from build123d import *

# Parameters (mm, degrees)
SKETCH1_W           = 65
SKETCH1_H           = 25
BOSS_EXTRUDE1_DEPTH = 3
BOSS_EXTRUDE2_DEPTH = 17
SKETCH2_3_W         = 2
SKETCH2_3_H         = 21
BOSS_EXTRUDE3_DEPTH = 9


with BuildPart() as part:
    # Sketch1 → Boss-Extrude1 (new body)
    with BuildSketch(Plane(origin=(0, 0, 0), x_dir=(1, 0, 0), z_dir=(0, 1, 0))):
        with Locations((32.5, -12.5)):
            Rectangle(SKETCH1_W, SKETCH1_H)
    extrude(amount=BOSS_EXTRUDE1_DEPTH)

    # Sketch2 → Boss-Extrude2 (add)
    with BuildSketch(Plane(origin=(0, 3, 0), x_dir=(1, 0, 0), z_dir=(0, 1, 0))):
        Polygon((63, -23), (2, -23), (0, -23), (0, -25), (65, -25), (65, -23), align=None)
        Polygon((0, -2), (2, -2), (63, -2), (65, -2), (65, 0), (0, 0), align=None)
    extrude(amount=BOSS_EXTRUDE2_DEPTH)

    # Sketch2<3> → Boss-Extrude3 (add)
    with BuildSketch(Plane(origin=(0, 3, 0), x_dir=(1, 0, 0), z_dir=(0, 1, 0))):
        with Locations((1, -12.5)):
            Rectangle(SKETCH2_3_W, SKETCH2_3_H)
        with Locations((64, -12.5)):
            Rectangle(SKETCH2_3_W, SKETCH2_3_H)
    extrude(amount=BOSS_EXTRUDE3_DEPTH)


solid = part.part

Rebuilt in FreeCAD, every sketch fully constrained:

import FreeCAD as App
import Part
import Sketcher
Q = App.Units.Quantity


def add_polygon(sketch, points):
    """Adds a closed chain of lines whose ends are joined by coincident constraints."""
    first, n = sketch.GeometryCount, len(points)
    for a, b in zip(points, points[1:] + points[:1]):
        sketch.addGeometry(Part.LineSegment(App.Vector(*a, 0), App.Vector(*b, 0)), False)
    for i in range(n):
        sketch.addConstraint(Sketcher.Constraint("Coincident", first + i, 2, first + (i + 1) % n, 1))

doc = App.newDocument("Part")
body = doc.addObject("PartDesign::Body", "Body")

sketch1 = body.newObject("Sketcher::SketchObject", "Sketch")
sketch1.AttachmentSupport = (doc.getObject("XZ_Plane"), [""])
sketch1.MapMode = "FlatFace"
add_polygon(sketch1, [(0, 0), (0, 25), (65, 25), (65, 0)])
sketch1.addConstraint([
    Sketcher.Constraint("Vertical", 0),
    Sketcher.Constraint("Horizontal", 1),
    Sketcher.Constraint("Vertical", 2),
    Sketcher.Constraint("Horizontal", 3),
    Sketcher.Constraint("Coincident", 3, 2, -1, 1),
    Sketcher.Constraint("DistanceX", 1, 1, 1, 2, Q("65 mm")),
    Sketcher.Constraint("DistanceY", 0, 1, 0, 2, Q("25 mm")),
])
pad1 = body.newObject("PartDesign::Pad", "Pad")
pad1.Profile = sketch1
pad1.Length = 3
pad1.Reversed = True

sketch2 = body.newObject("Sketcher::SketchObject", "Sketch001")
sketch2.AttachmentSupport = (doc.getObject("XZ_Plane"), [""])
sketch2.MapMode = "FlatFace"
sketch2.AttachmentOffset = App.Placement(App.Vector(0, 0, -3), App.Rotation())
add_polygon(sketch2, [(0, 23), (0, 25), (65, 25), (65, 23)])
add_polygon(sketch2, [(0, 2), (65, 2), (65, 0), (0, 0)])
sketch2.addConstraint([
    Sketcher.Constraint("Vertical", 0),
    Sketcher.Constraint("Horizontal", 1),
    Sketcher.Constraint("Vertical", 2),
    Sketcher.Constraint("Horizontal", 3),
    Sketcher.Constraint("Horizontal", 4),
    Sketcher.Constraint("Vertical", 5),
    Sketcher.Constraint("Horizontal", 6),
    Sketcher.Constraint("Vertical", 7),
    Sketcher.Constraint("Coincident", 6, 2, -1, 1),
    Sketcher.Constraint("PointOnObject", 0, 2, -2),
    Sketcher.Constraint("Vertical", 2, 2, 4, 2),
    Sketcher.Constraint("Equal", 2, 5),
    Sketcher.Constraint("DistanceX", 1, 1, 1, 2, Q("65 mm")),
    Sketcher.Constraint("DistanceY", 0, 1, 0, 2, Q("2 mm")),
    Sketcher.Constraint("DistanceY", -1, 1, 0, 2, Q("25 mm")),
])
pad2 = body.newObject("PartDesign::Pad", "Pad001")
pad2.Profile = sketch2
pad2.Length = 17
pad2.Reversed = True

sketch3 = body.newObject("Sketcher::SketchObject", "Sketch002")
sketch3.AttachmentSupport = (doc.getObject("XZ_Plane"), [""])
sketch3.MapMode = "FlatFace"
sketch3.AttachmentOffset = App.Placement(App.Vector(0, 0, -3), App.Rotation())
add_polygon(sketch3, [(0, 2), (0, 23), (2, 23), (2, 2)])
add_polygon(sketch3, [(63, 2), (63, 23), (65, 23), (65, 2)])
sketch3.addConstraint([
    Sketcher.Constraint("Vertical", 0),
    Sketcher.Constraint("Horizontal", 1),
    Sketcher.Constraint("Vertical", 2),
    Sketcher.Constraint("Horizontal", 3),
    Sketcher.Constraint("Vertical", 4),
    Sketcher.Constraint("Horizontal", 5),
    Sketcher.Constraint("Vertical", 6),
    Sketcher.Constraint("Horizontal", 7),
    Sketcher.Constraint("PointOnObject", 0, 2, -2),
    Sketcher.Constraint("Horizontal", 1, 2, 4, 2),
    Sketcher.Constraint("Horizontal", 3, 2, 6, 2),
    Sketcher.Constraint("Equal", 3, 5),
    Sketcher.Constraint("DistanceX", 1, 1, 1, 2, Q("2 mm")),
    Sketcher.Constraint("DistanceY", 0, 1, 0, 2, Q("21 mm")),
    Sketcher.Constraint("DistanceY", -1, 1, 0, 2, Q("23 mm")),
    Sketcher.Constraint("DistanceX", -1, 1, 4, 2, Q("63 mm")),
])
pad3 = body.newObject("PartDesign::Pad", "Pad002")
pad3.Profile = sketch3
pad3.Length = 9
pad3.Reversed = True

doc.recompute()
